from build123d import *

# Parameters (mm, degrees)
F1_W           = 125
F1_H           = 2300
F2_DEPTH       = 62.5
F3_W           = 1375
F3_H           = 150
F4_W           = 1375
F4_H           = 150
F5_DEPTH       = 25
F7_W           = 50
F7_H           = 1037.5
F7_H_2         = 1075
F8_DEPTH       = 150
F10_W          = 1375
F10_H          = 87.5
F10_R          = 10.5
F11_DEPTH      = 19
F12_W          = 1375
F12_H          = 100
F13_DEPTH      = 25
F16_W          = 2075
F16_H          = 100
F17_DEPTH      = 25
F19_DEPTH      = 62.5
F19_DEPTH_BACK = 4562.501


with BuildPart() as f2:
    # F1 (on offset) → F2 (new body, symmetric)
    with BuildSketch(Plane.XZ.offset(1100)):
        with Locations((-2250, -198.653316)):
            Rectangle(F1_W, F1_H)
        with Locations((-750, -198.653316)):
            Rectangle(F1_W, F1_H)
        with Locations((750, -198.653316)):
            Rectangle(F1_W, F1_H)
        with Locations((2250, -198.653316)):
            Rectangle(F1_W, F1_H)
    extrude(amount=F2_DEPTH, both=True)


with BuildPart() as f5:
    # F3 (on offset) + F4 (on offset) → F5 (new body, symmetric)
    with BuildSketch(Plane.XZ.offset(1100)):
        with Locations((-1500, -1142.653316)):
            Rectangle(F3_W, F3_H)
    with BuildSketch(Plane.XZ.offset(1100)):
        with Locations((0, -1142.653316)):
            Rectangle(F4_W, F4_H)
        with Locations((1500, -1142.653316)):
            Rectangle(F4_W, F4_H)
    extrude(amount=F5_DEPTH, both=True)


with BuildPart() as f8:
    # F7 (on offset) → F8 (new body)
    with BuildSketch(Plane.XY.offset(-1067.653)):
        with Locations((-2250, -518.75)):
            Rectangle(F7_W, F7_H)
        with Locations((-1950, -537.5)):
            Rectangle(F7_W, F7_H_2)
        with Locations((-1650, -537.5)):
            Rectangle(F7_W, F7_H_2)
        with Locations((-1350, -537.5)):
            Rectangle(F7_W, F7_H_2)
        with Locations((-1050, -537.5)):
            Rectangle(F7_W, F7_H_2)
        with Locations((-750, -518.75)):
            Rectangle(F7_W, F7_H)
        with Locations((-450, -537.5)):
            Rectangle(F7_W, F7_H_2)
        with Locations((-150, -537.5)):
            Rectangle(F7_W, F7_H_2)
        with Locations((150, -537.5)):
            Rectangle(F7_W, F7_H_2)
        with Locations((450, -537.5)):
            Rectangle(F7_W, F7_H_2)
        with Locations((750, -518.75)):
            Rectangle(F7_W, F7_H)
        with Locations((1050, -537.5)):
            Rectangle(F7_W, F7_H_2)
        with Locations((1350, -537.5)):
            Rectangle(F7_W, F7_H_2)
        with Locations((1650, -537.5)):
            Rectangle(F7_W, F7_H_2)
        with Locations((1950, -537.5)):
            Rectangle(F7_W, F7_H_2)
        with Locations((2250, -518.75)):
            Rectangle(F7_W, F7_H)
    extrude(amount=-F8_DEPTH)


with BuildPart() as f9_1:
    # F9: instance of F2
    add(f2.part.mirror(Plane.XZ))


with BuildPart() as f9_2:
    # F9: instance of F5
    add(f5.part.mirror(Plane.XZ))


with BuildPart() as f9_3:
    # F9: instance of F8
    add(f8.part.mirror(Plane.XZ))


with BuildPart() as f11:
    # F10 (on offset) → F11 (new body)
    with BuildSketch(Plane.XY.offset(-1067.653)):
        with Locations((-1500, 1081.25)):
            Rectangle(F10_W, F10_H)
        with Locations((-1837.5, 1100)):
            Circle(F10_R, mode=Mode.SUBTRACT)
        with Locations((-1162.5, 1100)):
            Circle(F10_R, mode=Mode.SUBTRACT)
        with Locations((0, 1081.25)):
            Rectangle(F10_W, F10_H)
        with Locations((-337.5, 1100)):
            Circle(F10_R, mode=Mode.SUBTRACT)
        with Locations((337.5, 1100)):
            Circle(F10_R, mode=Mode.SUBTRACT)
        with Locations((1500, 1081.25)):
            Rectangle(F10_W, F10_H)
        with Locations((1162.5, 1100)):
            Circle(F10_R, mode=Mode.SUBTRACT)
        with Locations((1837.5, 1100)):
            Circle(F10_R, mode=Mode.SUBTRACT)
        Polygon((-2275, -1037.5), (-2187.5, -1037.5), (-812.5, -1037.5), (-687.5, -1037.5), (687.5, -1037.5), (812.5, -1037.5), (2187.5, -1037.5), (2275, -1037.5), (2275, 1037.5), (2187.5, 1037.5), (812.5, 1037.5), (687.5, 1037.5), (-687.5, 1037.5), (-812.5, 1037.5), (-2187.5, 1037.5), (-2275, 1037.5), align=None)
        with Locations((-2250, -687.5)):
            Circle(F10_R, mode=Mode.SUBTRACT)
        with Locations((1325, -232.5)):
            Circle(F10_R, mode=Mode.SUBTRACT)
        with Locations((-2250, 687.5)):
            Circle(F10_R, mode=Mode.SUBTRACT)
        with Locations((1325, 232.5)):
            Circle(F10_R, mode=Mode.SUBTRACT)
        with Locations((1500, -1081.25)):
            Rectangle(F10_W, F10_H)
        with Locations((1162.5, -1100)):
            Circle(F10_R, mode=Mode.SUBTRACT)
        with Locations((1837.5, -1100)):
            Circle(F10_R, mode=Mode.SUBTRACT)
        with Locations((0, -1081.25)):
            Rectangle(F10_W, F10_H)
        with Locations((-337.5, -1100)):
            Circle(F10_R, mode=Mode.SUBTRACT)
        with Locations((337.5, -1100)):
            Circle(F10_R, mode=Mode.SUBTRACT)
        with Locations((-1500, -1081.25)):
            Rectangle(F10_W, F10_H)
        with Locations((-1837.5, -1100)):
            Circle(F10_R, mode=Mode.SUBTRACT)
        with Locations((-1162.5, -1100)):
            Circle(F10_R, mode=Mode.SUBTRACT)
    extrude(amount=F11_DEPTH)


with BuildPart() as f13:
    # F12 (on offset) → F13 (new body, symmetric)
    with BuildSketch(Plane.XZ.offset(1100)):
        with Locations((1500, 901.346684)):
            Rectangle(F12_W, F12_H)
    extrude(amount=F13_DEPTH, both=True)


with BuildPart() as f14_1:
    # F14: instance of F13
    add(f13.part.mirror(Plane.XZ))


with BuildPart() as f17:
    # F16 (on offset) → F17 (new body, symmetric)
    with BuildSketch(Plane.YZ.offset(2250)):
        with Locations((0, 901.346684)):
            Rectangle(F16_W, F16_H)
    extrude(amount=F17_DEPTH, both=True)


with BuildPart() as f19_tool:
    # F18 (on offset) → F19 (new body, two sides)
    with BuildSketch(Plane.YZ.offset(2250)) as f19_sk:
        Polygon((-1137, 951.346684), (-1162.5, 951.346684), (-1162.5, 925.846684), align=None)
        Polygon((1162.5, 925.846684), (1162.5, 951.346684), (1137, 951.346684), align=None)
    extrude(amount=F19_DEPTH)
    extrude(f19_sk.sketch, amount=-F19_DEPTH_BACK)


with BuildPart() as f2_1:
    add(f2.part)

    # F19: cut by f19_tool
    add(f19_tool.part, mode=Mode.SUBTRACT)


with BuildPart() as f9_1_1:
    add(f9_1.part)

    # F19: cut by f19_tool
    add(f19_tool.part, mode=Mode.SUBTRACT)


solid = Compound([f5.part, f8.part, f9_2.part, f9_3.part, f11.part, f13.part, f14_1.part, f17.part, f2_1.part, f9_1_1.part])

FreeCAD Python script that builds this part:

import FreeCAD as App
import Part
import Sketcher
from FreeCAD import Vector
Q = App.Units.Quantity


def add_polygon(sketch, points):
    """Adds a closed chain of lines whose ends are joined by coincident constraints."""
    first, n = sketch.GeometryCount, len(points)
    for a, b in zip(points, points[1:] + points[:1]):
        sketch.addGeometry(Part.LineSegment(App.Vector(*a, 0), App.Vector(*b, 0)), False)
    for i in range(n):
        sketch.addConstraint(Sketcher.Constraint("Coincident", first + i, 2, first + (i + 1) % n, 1))

doc = App.newDocument("Part")
params = doc.addObject("Spreadsheet::Sheet", "Params")
for row, (alias, value) in enumerate([
    ("sketch1_width", "125 mm"),
    ("sketch1_height", "2300 mm"),
    ("pad1_length", "125 mm"),
    ("sketch2_width", "1375 mm"),
    ("sketch2_height", "150 mm"),
    ("pad2_length", "50 mm"),
    ("sketch3_width", "50 mm"),
    ("sketch3_height", "1075 mm"),
    ("sketch3_height2", "1037.5 mm"),
    ("pad3_length", "150 mm"),
    ("sketch4_diameter", "21 mm"),
    ("sketch4_width", "1375 mm"),
    ("sketch4_width2", "125 mm"),
    ("sketch4_height", "2075 mm"),
    ("sketch4_width3", "87.5 mm"),
    ("pad4_length", "19 mm"),
    ("sketch5_width", "1375 mm"),
    ("sketch5_height", "100 mm"),
    ("pad5_length", "50 mm"),
    ("sketch6_width", "2075 mm"),
    ("sketch6_height", "100 mm"),
    ("pad6_length", "50 mm"),
    ("sketch7_width", "25.5 mm"),
    ("pad7_length", "62.5 mm"),
    ("pad7_length2", "4562.501 mm"),
], start=1):
    params.set(f"A{row}", alias)
    params.set(f"B{row}", "=" + value)
    params.setAlias(f"B{row}", alias)

body = doc.addObject("PartDesign::Body", "Body")
body.AllowCompound = True

# Sketch on XZ plane
sketch1 = doc.addObject("Sketcher::SketchObject", "Sketch")
body.addObject(sketch1)
sketch1.AttachmentSupport = (doc.XZ_Plane, [""])
sketch1.MapMode = "FlatFace"
sketch1.AttachmentOffset = App.Placement(Vector(0, 0, 1100), App.Rotation())
add_polygon(sketch1, [(-2312, 951), (-2312, -1349), (-2188, -1349), (-2188, 951)])  # lines 0-3
add_polygon(sketch1, [(-812, 951), (-812, -1349), (-688, -1349), (-688, 951)])  # lines 4-7
add_polygon(sketch1, [(688, 951), (688, -1349), (812, -1349), (812, 951)])  # lines 8-11
add_polygon(sketch1, [(2188, 951), (2188, -1349), (2312, -1349), (2312, 951)])  # lines 12-15
sketch1.addConstraint(Sketcher.Constraint("Vertical", 0))
sketch1.addConstraint(Sketcher.Constraint("Horizontal", 1))
sketch1.addConstraint(Sketcher.Constraint("Vertical", 2))
sketch1.addConstraint(Sketcher.Constraint("Horizontal", 3))
sketch1.addConstraint(Sketcher.Constraint("Vertical", 4))
sketch1.addConstraint(Sketcher.Constraint("Horizontal", 5))
sketch1.addConstraint(Sketcher.Constraint("Vertical", 6))
sketch1.addConstraint(Sketcher.Constraint("Horizontal", 7))
sketch1.addConstraint(Sketcher.Constraint("Vertical", 8))
sketch1.addConstraint(Sketcher.Constraint("Horizontal", 9))
sketch1.addConstraint(Sketcher.Constraint("Vertical", 10))
sketch1.addConstraint(Sketcher.Constraint("Horizontal", 11))
sketch1.addConstraint(Sketcher.Constraint("Vertical", 12))
sketch1.addConstraint(Sketcher.Constraint("Horizontal", 13))
sketch1.addConstraint(Sketcher.Constraint("Vertical", 14))
sketch1.addConstraint(Sketcher.Constraint("Horizontal", 15))
sketch1.addConstraint(Sketcher.Constraint("Symmetric", 5, 2, 8, 2, -2))
sketch1.addConstraint(Sketcher.Constraint("Symmetric", 7, 2, 10, 2, -2))
sketch1.addConstraint(Sketcher.Constraint("Symmetric", 1, 2, 12, 2, -2))
sketch1.addConstraint(Sketcher.Constraint("Symmetric", 3, 2, 14, 2, -2))
sketch1.addConstraint(Sketcher.Constraint("Horizontal", 1, 2, 4, 2))
sketch1.addConstraint(Sketcher.Constraint("Horizontal", 3, 2, 6, 2))
sketch1.addConstraint(Sketcher.Constraint("Equal", 3, 5))
sketch1.addConstraint(Sketcher.Constraint("DistanceX", 1, 1, 1, 2, Q("125 mm")))
sketch1.addConstraint(Sketcher.Constraint("DistanceY", 0, 2, 0, 1, Q("2300 mm")))
sketch1.addConstraint(Sketcher.Constraint("DistanceX", 1, 2, 4, 2, Q("1375 mm")))
sketch1.addConstraint(Sketcher.Constraint("DistanceX", 5, 2, 8, 2, Q("1375 mm")))
sketch1.addConstraint(Sketcher.Constraint("DistanceY", 0, 2, -1, 1, Q("1348.653316 mm")))
sketch1.setExpression("Constraints[39]", "Params.sketch1_width")
sketch1.setExpression("Constraints[40]", "Params.sketch1_height")
pad1 = doc.addObject("PartDesign::Pad", "Pad")
body.addObject(pad1)
pad1.Profile = sketch1
pad1.setExpression("Length", "Params.pad1_length")
pad1.Midplane = True
body2 = doc.addObject("PartDesign::Body", "Body001")
body2.AllowCompound = True

# Sketch on XZ plane
sketch2 = doc.addObject("Sketcher::SketchObject", "Sketch001")
body2.addObject(sketch2)
sketch2.AttachmentSupport = (doc.getObject("XZ_Plane001"), [""])
sketch2.MapMode = "FlatFace"
sketch2.AttachmentOffset = App.Placement(Vector(0, 0, 1100), App.Rotation())
add_polygon(sketch2, [(-2188, -1068), (-2188, -1218), (-812, -1218), (-812, -1068)])  # lines 0-3
add_polygon(sketch2, [(-688, -1068), (-688, -1218), (688, -1218), (688, -1068)])  # lines 4-7
add_polygon(sketch2, [(812, -1068), (812, -1218), (2188, -1218), (2188, -1068)])  # lines 8-11
sketch2.addConstraint(Sketcher.Constraint("Vertical", 0))
sketch2.addConstraint(Sketcher.Constraint("Horizontal", 1))
sketch2.addConstraint(Sketcher.Constraint("Vertical", 2))
sketch2.addConstraint(Sketcher.Constraint("Horizontal", 3))
sketch2.addConstraint(Sketcher.Constraint("Vertical", 4))
sketch2.addConstraint(Sketcher.Constraint("Horizontal", 5))
sketch2.addConstraint(Sketcher.Constraint("Vertical", 6))
sketch2.addConstraint(Sketcher.Constraint("Horizontal", 7))
sketch2.addConstraint(Sketcher.Constraint("Vertical", 8))
sketch2.addConstraint(Sketcher.Constraint("Horizontal", 9))
sketch2.addConstraint(Sketcher.Constraint("Vertical", 10))
sketch2.addConstraint(Sketcher.Constraint("Horizontal", 11))
sketch2.addConstraint(Sketcher.Constraint("Symmetric", 1, 2, 8, 2, -2))
sketch2.addConstraint(Sketcher.Constraint("Symmetric", 3, 2, 10, 2, -2))
sketch2.addConstraint(Sketcher.Constraint("Horizontal", 1, 2, 4, 2))
sketch2.addConstraint(Sketcher.Constraint("Horizontal", 3, 2, 6, 2))
sketch2.addConstraint(Sketcher.Constraint("Equal", 3, 5))
sketch2.addConstraint(Sketcher.Constraint("DistanceX", 1, 1, 1, 2, Q("1375 mm")))
sketch2.addConstraint(Sketcher.Constraint("DistanceY", 0, 2, 0, 1, Q("150 mm")))
sketch2.addConstraint(Sketcher.Constraint("DistanceX", 1, 2, 4, 2, Q("125 mm")))
sketch2.addConstraint(Sketcher.Constraint("DistanceX", 5, 2, 8, 2, Q("125 mm")))
sketch2.addConstraint(Sketcher.Constraint("DistanceY", 0, 2, -1, 1, Q("1217.653316 mm")))
sketch2.setExpression("Constraints[29]", "Params.sketch2_width")
sketch2.setExpression("Constraints[30]", "Params.sketch2_height")
pad2 = doc.addObject("PartDesign::Pad", "Pad001")
body2.addObject(pad2)
pad2.Profile = sketch2
pad2.setExpression("Length", "Params.pad2_length")
pad2.Midplane = True
body3 = doc.addObject("PartDesign::Body", "Body002")
body3.AllowCompound = True

# Sketch on XY plane
sketch3 = doc.addObject("Sketcher::SketchObject", "Sketch002")
body3.addObject(sketch3)
sketch3.AttachmentSupport = (doc.getObject("XY_Plane002"), [""])
sketch3.MapMode = "FlatFace"
sketch3.AttachmentOffset = App.Placement(Vector(0, 0, -1067.653), App.Rotation())
add_polygon(sketch3, [(-2275, 0), (-2275, -1038), (-2225, -1038), (-2225, 0)])  # lines 0-3
add_polygon(sketch3, [(-1975, 0), (-1975, -1075), (-1925, -1075), (-1925, 0)])  # lines 4-7
add_polygon(sketch3, [(-1675, 0), (-1675, -1075), (-1625, -1075), (-1625, 0)])  # lines 8-11
add_polygon(sketch3, [(-1375, 0), (-1375, -1075), (-1325, -1075), (-1325, 0)])  # lines 12-15
add_polygon(sketch3, [(-1075, 0), (-1075, -1075), (-1025, -1075), (-1025, 0)])  # lines 16-19
add_polygon(sketch3, [(-775, 0), (-775, -1038), (-725, -1038), (-725, 0)])  # lines 20-23
add_polygon(sketch3, [(-475, 0), (-475, -1075), (-425, -1075), (-425, 0)])  # lines 24-27
add_polygon(sketch3, [(-175, 0), (-175, -1075), (-125, -1075), (-125, 0)])  # lines 28-31
add_polygon(sketch3, [(125, 0), (125, -1075), (175, -1075), (175, 0)])  # lines 32-35
add_polygon(sketch3, [(425, 0), (425, -1075), (475, -1075), (475, 0)])  # lines 36-39
add_polygon(sketch3, [(725, 0), (725, -1038), (775, -1038), (775, 0)])  # lines 40-43
add_polygon(sketch3, [(1025, 0), (1025, -1075), (1075, -1075), (1075, 0)])  # lines 44-47
add_polygon(sketch3, [(1325, 0), (1325, -1075), (1375, -1075), (1375, 0)])  # lines 48-51
add_polygon(sketch3, [(1625, 0), (1625, -1075), (1675, -1075), (1675, 0)])  # lines 52-55
add_polygon(sketch3, [(1925, 0), (1925, -1075), (1975, -1075), (1975, 0)])  # lines 56-59
add_polygon(sketch3, [(2225, 0), (2225, -1038), (2275, -1038), (2275, 0)])  # lines 60-63
sketch3.addConstraint(Sketcher.Constraint("Vertical", 0))
sketch3.addConstraint(Sketcher.Constraint("Horizontal", 1))
sketch3.addConstraint(Sketcher.Constraint("Vertical", 2))
sketch3.addConstraint(Sketcher.Constraint("Horizontal", 3))
sketch3.addConstraint(Sketcher.Constraint("Vertical", 4))
sketch3.addConstraint(Sketcher.Constraint("Horizontal", 5))
sketch3.addConstraint(Sketcher.Constraint("Vertical", 6))
sketch3.addConstraint(Sketcher.Constraint("Horizontal", 7))
sketch3.addConstraint(Sketcher.Constraint("Vertical", 8))
sketch3.addConstraint(Sketcher.Constraint("Horizontal", 9))
sketch3.addConstraint(Sketcher.Constraint("Vertical", 10))
sketch3.addConstraint(Sketcher.Constraint("Horizontal", 11))
sketch3.addConstraint(Sketcher.Constraint("Vertical", 12))
sketch3.addConstraint(Sketcher.Constraint("Horizontal", 13))
sketch3.addConstraint(Sketcher.Constraint("Vertical", 14))
sketch3.addConstraint(Sketcher.Constraint("Horizontal", 15))
sketch3.addConstraint(Sketcher.Constraint("Vertical", 16))
sketch3.addConstraint(Sketcher.Constraint("Horizontal", 17))
sketch3.addConstraint(Sketcher.Constraint("Vertical", 18))
sketch3.addConstraint(Sketcher.Constraint("Horizontal", 19))
sketch3.addConstraint(Sketcher.Constraint("Vertical", 20))
sketch3.addConstraint(Sketcher.Constraint("Horizontal", 21))
sketch3.addConstraint(Sketcher.Constraint("Vertical", 22))
sketch3.addConstraint(Sketcher.Constraint("Horizontal", 23))
sketch3.addConstraint(Sketcher.Constraint("Vertical", 24))
sketch3.addConstraint(Sketcher.Constraint("Horizontal", 25))
sketch3.addConstraint(Sketcher.Constraint("Vertical", 26))
sketch3.addConstraint(Sketcher.Constraint("Horizontal", 27))
sketch3.addConstraint(Sketcher.Constraint("Vertical", 28))
sketch3.addConstraint(Sketcher.Constraint("Horizontal", 29))
sketch3.addConstraint(Sketcher.Constraint("Vertical", 30))
sketch3.addConstraint(Sketcher.Constraint("Horizontal", 31))
sketch3.addConstraint(Sketcher.Constraint("Vertical", 32))
sketch3.addConstraint(Sketcher.Constraint("Horizontal", 33))
sketch3.addConstraint(Sketcher.Constraint("Vertical", 34))
sketch3.addConstraint(Sketcher.Constraint("Horizontal", 35))
sketch3.addConstraint(Sketcher.Constraint("Vertical", 36))
sketch3.addConstraint(Sketcher.Constraint("Horizontal", 37))
sketch3.addConstraint(Sketcher.Constraint("Vertical", 38))
sketch3.addConstraint(Sketcher.Constraint("Horizontal", 39))
sketch3.addConstraint(Sketcher.Constraint("Vertical", 40))
sketch3.addConstraint(Sketcher.Constraint("Horizontal", 41))
sketch3.addConstraint(Sketcher.Constraint("Vertical", 42))
sketch3.addConstraint(Sketcher.Constraint("Horizontal", 43))
sketch3.addConstraint(Sketcher.Constraint("Vertical", 44))
sketch3.addConstraint(Sketcher.Constraint("Horizontal", 45))
sketch3.addConstraint(Sketcher.Constraint("Vertical", 46))
sketch3.addConstraint(Sketcher.Constraint("Horizontal", 47))
sketch3.addConstraint(Sketcher.Constraint("Vertical", 48))
sketch3.addConstraint(Sketcher.Constraint("Horizontal", 49))
sketch3.addConstraint(Sketcher.Constraint("Vertical", 50))
sketch3.addConstraint(Sketcher.Constraint("Horizontal", 51))
sketch3.addConstraint(Sketcher.Constraint("Vertical", 52))
sketch3.addConstraint(Sketcher.Constraint("Horizontal", 53))
sketch3.addConstraint(Sketcher.Constraint("Vertical", 54))
sketch3.addConstraint(Sketcher.Constraint("Horizontal", 55))
sketch3.addConstraint(Sketcher.Constraint("Vertical", 56))
sketch3.addConstraint(Sketcher.Constraint("Horizontal", 57))
sketch3.addConstraint(Sketcher.Constraint("Vertical", 58))
sketch3.addConstraint(Sketcher.Constraint("Horizontal", 59))
sketch3.addConstraint(Sketcher.Constraint("Vertical", 60))
sketch3.addConstraint(Sketcher.Constraint("Horizontal", 61))
sketch3.addConstraint(Sketcher.Constraint("Vertical", 62))
sketch3.addConstraint(Sketcher.Constraint("Horizontal", 63))
sketch3.addConstraint(Sketcher.Constraint("Symmetric", 31, 2, 34, 2, -1, 1))
sketch3.addConstraint(Sketcher.Constraint("Symmetric", 27, 2, 38, 2, -1, 1))
sketch3.addConstraint(Sketcher.Constraint("Symmetric", 23, 2, 42, 2, -1, 1))
sketch3.addConstraint(Sketcher.Constraint("Symmetric", 19, 2, 46, 2, -1, 1))
sketch3.addConstraint(Sketcher.Constraint("Symmetric", 15, 2, 50, 2, -1, 1))
sketch3.addConstraint(Sketcher.Constraint("Symmetric", 11, 2, 54, 2, -1, 1))
sketch3.addConstraint(Sketcher.Constraint("Symmetric", 7, 2, 58, 2, -1, 1))
sketch3.addConstraint(Sketcher.Constraint("Symmetric", 3, 2, 62, 2, -1, 1))
sketch3.addConstraint(Sketcher.Constraint("Symmetric", 29, 2, 32, 2, -2))
sketch3.addConstraint(Sketcher.Constraint("Symmetric", 25, 2, 36, 2, -2))
sketch3.addConstraint(Sketcher.Constraint("Symmetric", 21, 2, 40, 2, -2))
sketch3.addConstraint(Sketcher.Constraint("Symmetric", 17, 2, 44, 2, -2))
sketch3.addConstraint(Sketcher.Constraint("Symmetric", 13, 2, 48, 2, -2))
sketch3.addConstraint(Sketcher.Constraint("Symmetric", 9, 2, 52, 2, -2))
sketch3.addConstraint(Sketcher.Constraint("Symmetric", 5, 2, 56, 2, -2))
sketch3.addConstraint(Sketcher.Constraint("Symmetric", 1, 2, 60, 2, -2))
sketch3.addConstraint(Sketcher.Constraint("PointOnObject", 2, 2, -1))
sketch3.addConstraint(Sketcher.Constraint("PointOnObject", 6, 2, -1))
sketch3.addConstraint(Sketcher.Constraint("PointOnObject", 10, 2, -1))
sketch3.addConstraint(Sketcher.Constraint("PointOnObject", 14, 2, -1))
sketch3.addConstraint(Sketcher.Constraint("PointOnObject", 18, 2, -1))
sketch3.addConstraint(Sketcher.Constraint("PointOnObject", 22, 2, -1))
sketch3.addConstraint(Sketcher.Constraint("PointOnObject", 26, 2, -1))
sketch3.addConstraint(Sketcher.Constraint("PointOnObject", 30, 2, -1))
sketch3.addConstraint(Sketcher.Constraint("Horizontal", 5, 2, 8, 2))
sketch3.addConstraint(Sketcher.Constraint("Horizontal", 9, 2, 12, 2))
sketch3.addConstraint(Sketcher.Constraint("Horizontal", 13, 2, 16, 2))
sketch3.addConstraint(Sketcher.Constraint("Horizontal", 1, 2, 20, 2))
sketch3.addConstraint(Sketcher.Constraint("Horizontal", 17, 2, 24, 2))
sketch3.addConstraint(Sketcher.Constraint("Horizontal", 25, 2, 28, 2))
sketch3.addConstraint(Sketcher.Constraint("Equal", 3, 5))
sketch3.addConstraint(Sketcher.Constraint("Equal", 7, 9))
sketch3.addConstraint(Sketcher.Constraint("Equal", 11, 13))
sketch3.addConstraint(Sketcher.Constraint("Equal", 15, 17))
sketch3.addConstraint(Sketcher.Constraint("Equal", 19, 21))
sketch3.addConstraint(Sketcher.Constraint("Equal", 23, 25))
sketch3.addConstraint(Sketcher.Constraint("Equal", 27, 29))
sketch3.addConstraint(Sketcher.Constraint("DistanceX", 1, 1, 1, 2, Q("50 mm")))
sketch3.addConstraint(Sketcher.Constraint("DistanceY", 4, 2, 4, 1, Q("1075 mm")))
sketch3.addConstraint(Sketcher.Constraint("DistanceY", 0, 2, 0, 1, Q("1037.5 mm")))
sketch3.addConstraint(Sketcher.Constraint("DistanceX", 0, 2, -1, 1, Q("2275 mm")))
sketch3.addConstraint(Sketcher.Constraint("DistanceX", 4, 2, -1, 1, Q("1975 mm")))
sketch3.addConstraint(Sketcher.Constraint("DistanceX", 8, 2, -1, 1, Q("1675 mm")))
sketch3.addConstraint(Sketcher.Constraint("DistanceX", 12, 2, -1, 1, Q("1375 mm")))
sketch3.addConstraint(Sketcher.Constraint("DistanceX", 16, 2, -1, 1, Q("1075 mm")))
sketch3.addConstraint(Sketcher.Constraint("DistanceX", 20, 2, -1, 1, Q("775 mm")))
sketch3.addConstraint(Sketcher.Constraint("DistanceX", 24, 2, -1, 1, Q("475 mm")))
sketch3.addConstraint(Sketcher.Constraint("DistanceX", 28, 2, -1, 1, Q("175 mm")))
sketch3.setExpression("Constraints[165]", "Params.sketch3_width")
sketch3.setExpression("Constraints[166]", "Params.sketch3_height")
sketch3.setExpression("Constraints[167]", "Params.sketch3_height2")
pad3 = doc.addObject("PartDesign::Pad", "Pad002")
body3.addObject(pad3)
pad3.Profile = sketch3
pad3.setExpression("Length", "Params.pad3_length")
pad3.Reversed = True
body4 = doc.addObject("PartDesign::Body", "Body003")
body4.AllowCompound = True
doc.recompute()

mirroring = doc.addObject("Part::Mirroring", "Mirroring")
mirroring.Source = body
mirroring.Base = Vector(0, 0, 0)
mirroring.Normal = Vector(0, -1, 0)
body4.BaseFeature = mirroring
doc.recompute()
body5 = doc.addObject("PartDesign::Body", "Body004")
body5.AllowCompound = True
doc.recompute()

mirroring2 = doc.addObject("Part::Mirroring", "Mirroring001")
mirroring2.Source = body2
mirroring2.Base = Vector(0, 0, 0)
mirroring2.Normal = Vector(0, -1, 0)
body5.BaseFeature = mirroring2
doc.recompute()
body6 = doc.addObject("PartDesign::Body", "Body005")
body6.AllowCompound = True
doc.recompute()

mirroring3 = doc.addObject("Part::Mirroring", "Mirroring002")
mirroring3.Source = body3
mirroring3.Base = Vector(0, 0, 0)
mirroring3.Normal = Vector(0, -1, 0)
body6.BaseFeature = mirroring3
doc.recompute()
body7 = doc.addObject("PartDesign::Body", "Body006")

# Sketch on XY plane
sketch4 = doc.addObject("Sketcher::SketchObject", "Sketch003")
body7.addObject(sketch4)
sketch4.AttachmentSupport = (doc.getObject("XY_Plane006"), [""])
sketch4.MapMode = "FlatFace"
sketch4.AttachmentOffset = App.Placement(Vector(0, 0, -1067.653), App.Rotation())
add_polygon(sketch4, [(-2188, 1125), (-2188, 1038), (-2275, 1038), (-2275, -1038), (-2188, -1038), (-2188, -1125), (-812, -1125), (-812, -1038), (-688, -1038), (-688, -1125), (688, -1125), (688, -1038), (812, -1038), (812, -1125), (2188, -1125), (2188, -1038), (2275, -1038), (2275, 1038), (2188, 1038), (2188, 1125), (812, 1125), (812, 1038), (688, 1038), (688, 1125), (-688, 1125), (-688, 1038), (-812, 1038), (-812, 1125)])  # lines 0-27
sketch4.addGeometry(Part.Circle(Vector(-1838, -1100, 0), Vector(0, 0, 1), 10), False)  # 28
sketch4.addGeometry(Part.Circle(Vector(-2250, -688, 0), Vector(0, 0, 1), 10), False)  # 29
sketch4.addGeometry(Part.Circle(Vector(-1162, -1100, 0), Vector(0, 0, 1), 10), False)  # 30
sketch4.addGeometry(Part.Circle(Vector(-338, -1100, 0), Vector(0, 0, 1), 10), False)  # 31
sketch4.addGeometry(Part.Circle(Vector(338, -1100, 0), Vector(0, 0, 1), 10), False)  # 32
sketch4.addGeometry(Part.Circle(Vector(1162, -1100, 0), Vector(0, 0, 1), 10), False)  # 33
sketch4.addGeometry(Part.Circle(Vector(1838, -1100, 0), Vector(0, 0, 1), 10), False)  # 34
sketch4.addGeometry(Part.Circle(Vector(1325, -232, 0), Vector(0, 0, 1), 10), False)  # 35
sketch4.addGeometry(Part.Circle(Vector(-2250, 688, 0), Vector(0, 0, 1), 10), False)  # 36
sketch4.addGeometry(Part.Circle(Vector(-1838, 1100, 0), Vector(0, 0, 1), 10), False)  # 37
sketch4.addGeometry(Part.Circle(Vector(-1162, 1100, 0), Vector(0, 0, 1), 10), False)  # 38
sketch4.addGeometry(Part.Circle(Vector(-338, 1100, 0), Vector(0, 0, 1), 10), False)  # 39
sketch4.addGeometry(Part.Circle(Vector(1325, 232, 0), Vector(0, 0, 1), 10), False)  # 40
sketch4.addGeometry(Part.Circle(Vector(338, 1100, 0), Vector(0, 0, 1), 10), False)  # 41
sketch4.addGeometry(Part.Circle(Vector(1162, 1100, 0), Vector(0, 0, 1), 10), False)  # 42
sketch4.addGeometry(Part.Circle(Vector(1838, 1100, 0), Vector(0, 0, 1), 10), False)  # 43
sketch4.addConstraint(Sketcher.Constraint("Vertical", 0))
sketch4.addConstraint(Sketcher.Constraint("Horizontal", 1))
sketch4.addConstraint(Sketcher.Constraint("Vertical", 2))
sketch4.addConstraint(Sketcher.Constraint("Horizontal", 3))
sketch4.addConstraint(Sketcher.Constraint("Vertical", 4))
sketch4.addConstraint(Sketcher.Constraint("Horizontal", 5))
sketch4.addConstraint(Sketcher.Constraint("Vertical", 6))
sketch4.addConstraint(Sketcher.Constraint("Horizontal", 7))
sketch4.addConstraint(Sketcher.Constraint("Vertical", 8))
sketch4.addConstraint(Sketcher.Constraint("Horizontal", 9))
sketch4.addConstraint(Sketcher.Constraint("Vertical", 10))
sketch4.addConstraint(Sketcher.Constraint("Horizontal", 11))
sketch4.addConstraint(Sketcher.Constraint("Vertical", 12))
sketch4.addConstraint(Sketcher.Constraint("Horizontal", 13))
sketch4.addConstraint(Sketcher.Constraint("Vertical", 14))
sketch4.addConstraint(Sketcher.Constraint("Horizontal", 15))
sketch4.addConstraint(Sketcher.Constraint("Vertical", 16))
sketch4.addConstraint(Sketcher.Constraint("Horizontal", 17))
sketch4.addConstraint(Sketcher.Constraint("Vertical", 18))
sketch4.addConstraint(Sketcher.Constraint("Horizontal", 19))
sketch4.addConstraint(Sketcher.Constraint("Vertical", 20))
sketch4.addConstraint(Sketcher.Constraint("Horizontal", 21))
sketch4.addConstraint(Sketcher.Constraint("Vertical", 22))
sketch4.addConstraint(Sketcher.Constraint("Horizontal", 23))
sketch4.addConstraint(Sketcher.Constraint("Vertical", 24))
sketch4.addConstraint(Sketcher.Constraint("Horizontal", 25))
sketch4.addConstraint(Sketcher.Constraint("Vertical", 26))
sketch4.addConstraint(Sketcher.Constraint("Horizontal", 27))
sketch4.addConstraint(Sketcher.Constraint("Equal", 28, 29))
sketch4.addConstraint(Sketcher.Constraint("Equal", 29, 30))
sketch4.addConstraint(Sketcher.Constraint("Equal", 30, 31))
sketch4.addConstraint(Sketcher.Constraint("Equal", 31, 32))
sketch4.addConstraint(Sketcher.Constraint("Equal", 32, 33))
sketch4.addConstraint(Sketcher.Constraint("Equal", 33, 34))
sketch4.addConstraint(Sketcher.Constraint("Equal", 34, 35))
sketch4.addConstraint(Sketcher.Constraint("Equal", 35, 36))
sketch4.addConstraint(Sketcher.Constraint("Equal", 36, 37))
sketch4.addConstraint(Sketcher.Constraint("Equal", 37, 38))
sketch4.addConstraint(Sketcher.Constraint("Equal", 38, 39))
sketch4.addConstraint(Sketcher.Constraint("Equal", 39, 40))
sketch4.addConstraint(Sketcher.Constraint("Equal", 40, 41))
sketch4.addConstraint(Sketcher.Constraint("Equal", 41, 42))
sketch4.addConstraint(Sketcher.Constraint("Equal", 42, 43))
sketch4.addConstraint(Sketcher.Constraint("Symmetric", 34, 3, 37, 3, -1, 1))
sketch4.addConstraint(Sketcher.Constraint("Symmetric", 33, 3, 38, 3, -1, 1))
sketch4.addConstraint(Sketcher.Constraint("Symmetric", 32, 3, 39, 3, -1, 1))
sketch4.addConstraint(Sketcher.Constraint("Symmetric", 31, 3, 41, 3, -1, 1))
sketch4.addConstraint(Sketcher.Constraint("Symmetric", 30, 3, 42, 3, -1, 1))
sketch4.addConstraint(Sketcher.Constraint("Symmetric", 28, 3, 43, 3, -1, 1))
sketch4.addConstraint(Sketcher.Constraint("Symmetric", 0, 2, 14, 2, -1, 1))
sketch4.addConstraint(Sketcher.Constraint("Symmetric", 2, 2, 16, 2, -1, 1))
sketch4.addConstraint(Sketcher.Constraint("Symmetric", 4, 2, 18, 2, -1, 1))
sketch4.addConstraint(Sketcher.Constraint("Symmetric", 6, 2, 20, 2, -1, 1))
sketch4.addConstraint(Sketcher.Constraint("Symmetric", 8, 2, 22, 2, -1, 1))
sketch4.addConstraint(Sketcher.Constraint("Symmetric", 10, 2, 24, 2, -1, 1))
sketch4.addConstraint(Sketcher.Constraint("Symmetric", 12, 2, 26, 2, -1, 1))
sketch4.addConstraint(Sketcher.Constraint("Symmetric", 31, 3, 32, 3, -2))
sketch4.addConstraint(Sketcher.Constraint("Symmetric", 30, 3, 33, 3, -2))
sketch4.addConstraint(Sketcher.Constraint("Symmetric", 28, 3, 34, 3, -2))
sketch4.addConstraint(Sketcher.Constraint("Symmetric", 7, 2, 10, 2, -2))
sketch4.addConstraint(Sketcher.Constraint("Symmetric", 5, 2, 12, 2, -2))
sketch4.addConstraint(Sketcher.Constraint("Symmetric", 3, 2, 14, 2, -2))
sketch4.addConstraint(Sketcher.Constraint("Symmetric", 29, 3, 36, 3, -1))
sketch4.addConstraint(Sketcher.Constraint("Symmetric", 35, 3, 40, 3, -1))
sketch4.addConstraint(Sketcher.Constraint("Horizontal", 28, 3, 30, 3))
sketch4.addConstraint(Sketcher.Constraint("Horizontal", 30, 3, 31, 3))
sketch4.addConstraint(Sketcher.Constraint("Horizontal", 3, 2, 6, 2))
sketch4.addConstraint(Sketcher.Constraint("Horizontal", 5, 2, 8, 2))
sketch4.addConstraint(Sketcher.Constraint("Equal", 5, 9))
sketch4.addConstraint(Sketcher.Constraint("Equal", 17, 0))
sketch4.addConstraint(Sketcher.Constraint("Diameter", 28, Q("21 mm")))
sketch4.addConstraint(Sketcher.Constraint("DistanceX", 5, 1, 5, 2, Q("1375 mm")))
sketch4.addConstraint(Sketcher.Constraint("DistanceX", 7, 1, 7, 2, Q("125 mm")))
sketch4.addConstraint(Sketcher.Constraint("DistanceY", 2, 2, 2, 1, Q("2075 mm")))
sketch4.addConstraint(Sketcher.Constraint("DistanceX", 1, 2, 1, 1, Q("87.5 mm")))
sketch4.addConstraint(Sketcher.Constraint("DistanceY", 28, 3, -1, 1, Q("1100 mm")))
sketch4.addConstraint(Sketcher.Constraint("DistanceX", 29, 3, -1, 1, Q("2250 mm")))
sketch4.addConstraint(Sketcher.Constraint("DistanceX", -1, 1, 35, 3, Q("1325 mm")))
sketch4.addConstraint(Sketcher.Constraint("DistanceX", 28, 3, 30, 3, Q("675 mm")))
sketch4.addConstraint(Sketcher.Constraint("DistanceX", 30, 3, 31, 3, Q("825 mm")))
sketch4.addConstraint(Sketcher.Constraint("DistanceX", 31, 3, 32, 3, Q("675 mm")))
sketch4.addConstraint(Sketcher.Constraint("DistanceY", 29, 3, 36, 3, Q("1375 mm")))
sketch4.addConstraint(Sketcher.Constraint("DistanceY", 35, 3, 40, 3, Q("465 mm")))
sketch4.setExpression("Constraints[98]", "Params.sketch4_diameter")
sketch4.setExpression("Constraints[99]", "Params.sketch4_width")
sketch4.setExpression("Constraints[100]", "Params.sketch4_width2")
sketch4.setExpression("Constraints[101]", "Params.sketch4_height")
sketch4.setExpression("Constraints[102]", "Params.sketch4_width3")
pad4 = doc.addObject("PartDesign::Pad", "Pad003")
body7.addObject(pad4)
pad4.Profile = sketch4
pad4.setExpression("Length", "Params.pad4_length")
body8 = doc.addObject("PartDesign::Body", "Body007")

# Sketch on XZ plane
sketch5 = doc.addObject("Sketcher::SketchObject", "Sketch004")
body8.addObject(sketch5)
sketch5.AttachmentSupport = (doc.getObject("XZ_Plane007"), [""])
sketch5.MapMode = "FlatFace"
sketch5.AttachmentOffset = App.Placement(Vector(0, 0, 1100), App.Rotation())
add_polygon(sketch5, [(812, 951), (812, 851), (2188, 851), (2188, 951)])  # lines 0-3
sketch5.addConstraint(Sketcher.Constraint("Vertical", 0))
sketch5.addConstraint(Sketcher.Constraint("Horizontal", 1))
sketch5.addConstraint(Sketcher.Constraint("Vertical", 2))
sketch5.addConstraint(Sketcher.Constraint("Horizontal", 3))
sketch5.addConstraint(Sketcher.Constraint("DistanceX", 1, 1, 1, 2, Q("1375 mm")))
sketch5.addConstraint(Sketcher.Constraint("DistanceY", 0, 2, 0, 1, Q("100 mm")))
sketch5.addConstraint(Sketcher.Constraint("DistanceX", -1, 1, 0, 2, Q("812.5 mm")))
sketch5.addConstraint(Sketcher.Constraint("DistanceY", -1, 1, 0, 2, Q("851.346684 mm")))
sketch5.setExpression("Constraints[8]", "Params.sketch5_width")
sketch5.setExpression("Constraints[9]", "Params.sketch5_height")
pad5 = doc.addObject("PartDesign::Pad", "Pad004")
body8.addObject(pad5)
pad5.Profile = sketch5
pad5.setExpression("Length", "Params.pad5_length")
pad5.Midplane = True
body9 = doc.addObject("PartDesign::Body", "Body008")
doc.recompute()

mirroring4 = doc.addObject("Part::Mirroring", "Mirroring003")
mirroring4.Source = body8
mirroring4.Base = Vector(0, 0, 0)
mirroring4.Normal = Vector(0, -1, 0)
body9.BaseFeature = mirroring4
doc.recompute()
body10 = doc.addObject("PartDesign::Body", "Body009")

# Sketch on YZ plane
sketch6 = doc.addObject("Sketcher::SketchObject", "Sketch005")
body10.addObject(sketch6)
sketch6.AttachmentSupport = (doc.getObject("YZ_Plane009"), [""])
sketch6.MapMode = "FlatFace"
sketch6.AttachmentOffset = App.Placement(Vector(0, 0, 2250), App.Rotation())
add_polygon(sketch6, [(-1038, 951), (-1038, 851), (1038, 851), (1038, 951)])  # lines 0-3
sketch6.addConstraint(Sketcher.Constraint("Vertical", 0))
sketch6.addConstraint(Sketcher.Constraint("Horizontal", 1))
sketch6.addConstraint(Sketcher.Constraint("Vertical", 2))
sketch6.addConstraint(Sketcher.Constraint("Horizontal", 3))
sketch6.addConstraint(Sketcher.Constraint("DistanceX", 1, 1, 1, 2, Q("2075 mm")))
sketch6.addConstraint(Sketcher.Constraint("DistanceY", 0, 2, 0, 1, Q("100 mm")))
sketch6.addConstraint(Sketcher.Constraint("DistanceX", 0, 2, -1, 1, Q("1037.5 mm")))
sketch6.addConstraint(Sketcher.Constraint("DistanceY", -1, 1, 0, 2, Q("851.346684 mm")))
sketch6.setExpression("Constraints[8]", "Params.sketch6_width")
sketch6.setExpression("Constraints[9]", "Params.sketch6_height")
pad6 = doc.addObject("PartDesign::Pad", "Pad005")
body10.addObject(pad6)
pad6.Profile = sketch6
pad6.setExpression("Length", "Params.pad6_length")
pad6.Midplane = True
body11 = doc.addObject("PartDesign::Body", "Body010")
body11.AllowCompound = True

# Sketch on YZ plane
sketch7 = doc.addObject("Sketcher::SketchObject", "Sketch006")
body11.addObject(sketch7)
sketch7.AttachmentSupport = (doc.getObject("YZ_Plane010"), [""])
sketch7.MapMode = "FlatFace"
sketch7.AttachmentOffset = App.Placement(Vector(0, 0, 2250), App.Rotation())
add_polygon(sketch7, [(-1137, 951), (-1162, 951), (-1162, 926)])  # lines 0-2
add_polygon(sketch7, [(1162, 926), (1162, 951), (1137, 951)])  # lines 3-5
sketch7.addConstraint(Sketcher.Constraint("Horizontal", 0))
sketch7.addConstraint(Sketcher.Constraint("Vertical", 1))
sketch7.addConstraint(Sketcher.Constraint("Vertical", 3))
sketch7.addConstraint(Sketcher.Constraint("Horizontal", 4))
sketch7.addConstraint(Sketcher.Constraint("Symmetric", 0, 2, 3, 2, -2))
sketch7.addConstraint(Sketcher.Constraint("Perpendicular", 2, 5))
sketch7.addConstraint(Sketcher.Constraint("Horizontal", 1, 2, 5, 2))
sketch7.addConstraint(Sketcher.Constraint("Equal", 0, 4))
sketch7.addConstraint(Sketcher.Constraint("DistanceX", 0, 2, 0, 1, Q("25.5 mm")))
sketch7.addConstraint(Sketcher.Constraint("DistanceX", 2, 2, -1, 1, Q("1137 mm")))
sketch7.addConstraint(Sketcher.Constraint("DistanceY", -1, 1, 0, 2, Q("951.346684 mm")))
sketch7.setExpression("Constraints[14]", "Params.sketch7_width")
pad7 = doc.addObject("PartDesign::Pad", "Pad006")
body11.addObject(pad7)
pad7.Profile = sketch7
pad7.Type = "TwoLengths"
pad7.setExpression("Length", "Params.pad7_length")
pad7.setExpression("Length2", "Params.pad7_length2")
body.AllowCompound = True
doc.recompute()

body12 = doc.addObject("PartDesign::Body", "Body011")
body12.BaseFeature = body11
boolean = doc.addObject("PartDesign::Boolean", "Boolean")
body.addObject(boolean)
boolean.Type = "Cut"
boolean.addObjects([body12])
doc.recompute()
body4.AllowCompound = True
doc.recompute()

boolean2 = doc.addObject("PartDesign::Boolean", "Boolean001")
body4.addObject(boolean2)
boolean2.Type = "Cut"
boolean2.addObjects([body11])
mirroring.Visibility = False
mirroring2.Visibility = False
mirroring3.Visibility = False
mirroring4.Visibility = False

doc.recompute()
